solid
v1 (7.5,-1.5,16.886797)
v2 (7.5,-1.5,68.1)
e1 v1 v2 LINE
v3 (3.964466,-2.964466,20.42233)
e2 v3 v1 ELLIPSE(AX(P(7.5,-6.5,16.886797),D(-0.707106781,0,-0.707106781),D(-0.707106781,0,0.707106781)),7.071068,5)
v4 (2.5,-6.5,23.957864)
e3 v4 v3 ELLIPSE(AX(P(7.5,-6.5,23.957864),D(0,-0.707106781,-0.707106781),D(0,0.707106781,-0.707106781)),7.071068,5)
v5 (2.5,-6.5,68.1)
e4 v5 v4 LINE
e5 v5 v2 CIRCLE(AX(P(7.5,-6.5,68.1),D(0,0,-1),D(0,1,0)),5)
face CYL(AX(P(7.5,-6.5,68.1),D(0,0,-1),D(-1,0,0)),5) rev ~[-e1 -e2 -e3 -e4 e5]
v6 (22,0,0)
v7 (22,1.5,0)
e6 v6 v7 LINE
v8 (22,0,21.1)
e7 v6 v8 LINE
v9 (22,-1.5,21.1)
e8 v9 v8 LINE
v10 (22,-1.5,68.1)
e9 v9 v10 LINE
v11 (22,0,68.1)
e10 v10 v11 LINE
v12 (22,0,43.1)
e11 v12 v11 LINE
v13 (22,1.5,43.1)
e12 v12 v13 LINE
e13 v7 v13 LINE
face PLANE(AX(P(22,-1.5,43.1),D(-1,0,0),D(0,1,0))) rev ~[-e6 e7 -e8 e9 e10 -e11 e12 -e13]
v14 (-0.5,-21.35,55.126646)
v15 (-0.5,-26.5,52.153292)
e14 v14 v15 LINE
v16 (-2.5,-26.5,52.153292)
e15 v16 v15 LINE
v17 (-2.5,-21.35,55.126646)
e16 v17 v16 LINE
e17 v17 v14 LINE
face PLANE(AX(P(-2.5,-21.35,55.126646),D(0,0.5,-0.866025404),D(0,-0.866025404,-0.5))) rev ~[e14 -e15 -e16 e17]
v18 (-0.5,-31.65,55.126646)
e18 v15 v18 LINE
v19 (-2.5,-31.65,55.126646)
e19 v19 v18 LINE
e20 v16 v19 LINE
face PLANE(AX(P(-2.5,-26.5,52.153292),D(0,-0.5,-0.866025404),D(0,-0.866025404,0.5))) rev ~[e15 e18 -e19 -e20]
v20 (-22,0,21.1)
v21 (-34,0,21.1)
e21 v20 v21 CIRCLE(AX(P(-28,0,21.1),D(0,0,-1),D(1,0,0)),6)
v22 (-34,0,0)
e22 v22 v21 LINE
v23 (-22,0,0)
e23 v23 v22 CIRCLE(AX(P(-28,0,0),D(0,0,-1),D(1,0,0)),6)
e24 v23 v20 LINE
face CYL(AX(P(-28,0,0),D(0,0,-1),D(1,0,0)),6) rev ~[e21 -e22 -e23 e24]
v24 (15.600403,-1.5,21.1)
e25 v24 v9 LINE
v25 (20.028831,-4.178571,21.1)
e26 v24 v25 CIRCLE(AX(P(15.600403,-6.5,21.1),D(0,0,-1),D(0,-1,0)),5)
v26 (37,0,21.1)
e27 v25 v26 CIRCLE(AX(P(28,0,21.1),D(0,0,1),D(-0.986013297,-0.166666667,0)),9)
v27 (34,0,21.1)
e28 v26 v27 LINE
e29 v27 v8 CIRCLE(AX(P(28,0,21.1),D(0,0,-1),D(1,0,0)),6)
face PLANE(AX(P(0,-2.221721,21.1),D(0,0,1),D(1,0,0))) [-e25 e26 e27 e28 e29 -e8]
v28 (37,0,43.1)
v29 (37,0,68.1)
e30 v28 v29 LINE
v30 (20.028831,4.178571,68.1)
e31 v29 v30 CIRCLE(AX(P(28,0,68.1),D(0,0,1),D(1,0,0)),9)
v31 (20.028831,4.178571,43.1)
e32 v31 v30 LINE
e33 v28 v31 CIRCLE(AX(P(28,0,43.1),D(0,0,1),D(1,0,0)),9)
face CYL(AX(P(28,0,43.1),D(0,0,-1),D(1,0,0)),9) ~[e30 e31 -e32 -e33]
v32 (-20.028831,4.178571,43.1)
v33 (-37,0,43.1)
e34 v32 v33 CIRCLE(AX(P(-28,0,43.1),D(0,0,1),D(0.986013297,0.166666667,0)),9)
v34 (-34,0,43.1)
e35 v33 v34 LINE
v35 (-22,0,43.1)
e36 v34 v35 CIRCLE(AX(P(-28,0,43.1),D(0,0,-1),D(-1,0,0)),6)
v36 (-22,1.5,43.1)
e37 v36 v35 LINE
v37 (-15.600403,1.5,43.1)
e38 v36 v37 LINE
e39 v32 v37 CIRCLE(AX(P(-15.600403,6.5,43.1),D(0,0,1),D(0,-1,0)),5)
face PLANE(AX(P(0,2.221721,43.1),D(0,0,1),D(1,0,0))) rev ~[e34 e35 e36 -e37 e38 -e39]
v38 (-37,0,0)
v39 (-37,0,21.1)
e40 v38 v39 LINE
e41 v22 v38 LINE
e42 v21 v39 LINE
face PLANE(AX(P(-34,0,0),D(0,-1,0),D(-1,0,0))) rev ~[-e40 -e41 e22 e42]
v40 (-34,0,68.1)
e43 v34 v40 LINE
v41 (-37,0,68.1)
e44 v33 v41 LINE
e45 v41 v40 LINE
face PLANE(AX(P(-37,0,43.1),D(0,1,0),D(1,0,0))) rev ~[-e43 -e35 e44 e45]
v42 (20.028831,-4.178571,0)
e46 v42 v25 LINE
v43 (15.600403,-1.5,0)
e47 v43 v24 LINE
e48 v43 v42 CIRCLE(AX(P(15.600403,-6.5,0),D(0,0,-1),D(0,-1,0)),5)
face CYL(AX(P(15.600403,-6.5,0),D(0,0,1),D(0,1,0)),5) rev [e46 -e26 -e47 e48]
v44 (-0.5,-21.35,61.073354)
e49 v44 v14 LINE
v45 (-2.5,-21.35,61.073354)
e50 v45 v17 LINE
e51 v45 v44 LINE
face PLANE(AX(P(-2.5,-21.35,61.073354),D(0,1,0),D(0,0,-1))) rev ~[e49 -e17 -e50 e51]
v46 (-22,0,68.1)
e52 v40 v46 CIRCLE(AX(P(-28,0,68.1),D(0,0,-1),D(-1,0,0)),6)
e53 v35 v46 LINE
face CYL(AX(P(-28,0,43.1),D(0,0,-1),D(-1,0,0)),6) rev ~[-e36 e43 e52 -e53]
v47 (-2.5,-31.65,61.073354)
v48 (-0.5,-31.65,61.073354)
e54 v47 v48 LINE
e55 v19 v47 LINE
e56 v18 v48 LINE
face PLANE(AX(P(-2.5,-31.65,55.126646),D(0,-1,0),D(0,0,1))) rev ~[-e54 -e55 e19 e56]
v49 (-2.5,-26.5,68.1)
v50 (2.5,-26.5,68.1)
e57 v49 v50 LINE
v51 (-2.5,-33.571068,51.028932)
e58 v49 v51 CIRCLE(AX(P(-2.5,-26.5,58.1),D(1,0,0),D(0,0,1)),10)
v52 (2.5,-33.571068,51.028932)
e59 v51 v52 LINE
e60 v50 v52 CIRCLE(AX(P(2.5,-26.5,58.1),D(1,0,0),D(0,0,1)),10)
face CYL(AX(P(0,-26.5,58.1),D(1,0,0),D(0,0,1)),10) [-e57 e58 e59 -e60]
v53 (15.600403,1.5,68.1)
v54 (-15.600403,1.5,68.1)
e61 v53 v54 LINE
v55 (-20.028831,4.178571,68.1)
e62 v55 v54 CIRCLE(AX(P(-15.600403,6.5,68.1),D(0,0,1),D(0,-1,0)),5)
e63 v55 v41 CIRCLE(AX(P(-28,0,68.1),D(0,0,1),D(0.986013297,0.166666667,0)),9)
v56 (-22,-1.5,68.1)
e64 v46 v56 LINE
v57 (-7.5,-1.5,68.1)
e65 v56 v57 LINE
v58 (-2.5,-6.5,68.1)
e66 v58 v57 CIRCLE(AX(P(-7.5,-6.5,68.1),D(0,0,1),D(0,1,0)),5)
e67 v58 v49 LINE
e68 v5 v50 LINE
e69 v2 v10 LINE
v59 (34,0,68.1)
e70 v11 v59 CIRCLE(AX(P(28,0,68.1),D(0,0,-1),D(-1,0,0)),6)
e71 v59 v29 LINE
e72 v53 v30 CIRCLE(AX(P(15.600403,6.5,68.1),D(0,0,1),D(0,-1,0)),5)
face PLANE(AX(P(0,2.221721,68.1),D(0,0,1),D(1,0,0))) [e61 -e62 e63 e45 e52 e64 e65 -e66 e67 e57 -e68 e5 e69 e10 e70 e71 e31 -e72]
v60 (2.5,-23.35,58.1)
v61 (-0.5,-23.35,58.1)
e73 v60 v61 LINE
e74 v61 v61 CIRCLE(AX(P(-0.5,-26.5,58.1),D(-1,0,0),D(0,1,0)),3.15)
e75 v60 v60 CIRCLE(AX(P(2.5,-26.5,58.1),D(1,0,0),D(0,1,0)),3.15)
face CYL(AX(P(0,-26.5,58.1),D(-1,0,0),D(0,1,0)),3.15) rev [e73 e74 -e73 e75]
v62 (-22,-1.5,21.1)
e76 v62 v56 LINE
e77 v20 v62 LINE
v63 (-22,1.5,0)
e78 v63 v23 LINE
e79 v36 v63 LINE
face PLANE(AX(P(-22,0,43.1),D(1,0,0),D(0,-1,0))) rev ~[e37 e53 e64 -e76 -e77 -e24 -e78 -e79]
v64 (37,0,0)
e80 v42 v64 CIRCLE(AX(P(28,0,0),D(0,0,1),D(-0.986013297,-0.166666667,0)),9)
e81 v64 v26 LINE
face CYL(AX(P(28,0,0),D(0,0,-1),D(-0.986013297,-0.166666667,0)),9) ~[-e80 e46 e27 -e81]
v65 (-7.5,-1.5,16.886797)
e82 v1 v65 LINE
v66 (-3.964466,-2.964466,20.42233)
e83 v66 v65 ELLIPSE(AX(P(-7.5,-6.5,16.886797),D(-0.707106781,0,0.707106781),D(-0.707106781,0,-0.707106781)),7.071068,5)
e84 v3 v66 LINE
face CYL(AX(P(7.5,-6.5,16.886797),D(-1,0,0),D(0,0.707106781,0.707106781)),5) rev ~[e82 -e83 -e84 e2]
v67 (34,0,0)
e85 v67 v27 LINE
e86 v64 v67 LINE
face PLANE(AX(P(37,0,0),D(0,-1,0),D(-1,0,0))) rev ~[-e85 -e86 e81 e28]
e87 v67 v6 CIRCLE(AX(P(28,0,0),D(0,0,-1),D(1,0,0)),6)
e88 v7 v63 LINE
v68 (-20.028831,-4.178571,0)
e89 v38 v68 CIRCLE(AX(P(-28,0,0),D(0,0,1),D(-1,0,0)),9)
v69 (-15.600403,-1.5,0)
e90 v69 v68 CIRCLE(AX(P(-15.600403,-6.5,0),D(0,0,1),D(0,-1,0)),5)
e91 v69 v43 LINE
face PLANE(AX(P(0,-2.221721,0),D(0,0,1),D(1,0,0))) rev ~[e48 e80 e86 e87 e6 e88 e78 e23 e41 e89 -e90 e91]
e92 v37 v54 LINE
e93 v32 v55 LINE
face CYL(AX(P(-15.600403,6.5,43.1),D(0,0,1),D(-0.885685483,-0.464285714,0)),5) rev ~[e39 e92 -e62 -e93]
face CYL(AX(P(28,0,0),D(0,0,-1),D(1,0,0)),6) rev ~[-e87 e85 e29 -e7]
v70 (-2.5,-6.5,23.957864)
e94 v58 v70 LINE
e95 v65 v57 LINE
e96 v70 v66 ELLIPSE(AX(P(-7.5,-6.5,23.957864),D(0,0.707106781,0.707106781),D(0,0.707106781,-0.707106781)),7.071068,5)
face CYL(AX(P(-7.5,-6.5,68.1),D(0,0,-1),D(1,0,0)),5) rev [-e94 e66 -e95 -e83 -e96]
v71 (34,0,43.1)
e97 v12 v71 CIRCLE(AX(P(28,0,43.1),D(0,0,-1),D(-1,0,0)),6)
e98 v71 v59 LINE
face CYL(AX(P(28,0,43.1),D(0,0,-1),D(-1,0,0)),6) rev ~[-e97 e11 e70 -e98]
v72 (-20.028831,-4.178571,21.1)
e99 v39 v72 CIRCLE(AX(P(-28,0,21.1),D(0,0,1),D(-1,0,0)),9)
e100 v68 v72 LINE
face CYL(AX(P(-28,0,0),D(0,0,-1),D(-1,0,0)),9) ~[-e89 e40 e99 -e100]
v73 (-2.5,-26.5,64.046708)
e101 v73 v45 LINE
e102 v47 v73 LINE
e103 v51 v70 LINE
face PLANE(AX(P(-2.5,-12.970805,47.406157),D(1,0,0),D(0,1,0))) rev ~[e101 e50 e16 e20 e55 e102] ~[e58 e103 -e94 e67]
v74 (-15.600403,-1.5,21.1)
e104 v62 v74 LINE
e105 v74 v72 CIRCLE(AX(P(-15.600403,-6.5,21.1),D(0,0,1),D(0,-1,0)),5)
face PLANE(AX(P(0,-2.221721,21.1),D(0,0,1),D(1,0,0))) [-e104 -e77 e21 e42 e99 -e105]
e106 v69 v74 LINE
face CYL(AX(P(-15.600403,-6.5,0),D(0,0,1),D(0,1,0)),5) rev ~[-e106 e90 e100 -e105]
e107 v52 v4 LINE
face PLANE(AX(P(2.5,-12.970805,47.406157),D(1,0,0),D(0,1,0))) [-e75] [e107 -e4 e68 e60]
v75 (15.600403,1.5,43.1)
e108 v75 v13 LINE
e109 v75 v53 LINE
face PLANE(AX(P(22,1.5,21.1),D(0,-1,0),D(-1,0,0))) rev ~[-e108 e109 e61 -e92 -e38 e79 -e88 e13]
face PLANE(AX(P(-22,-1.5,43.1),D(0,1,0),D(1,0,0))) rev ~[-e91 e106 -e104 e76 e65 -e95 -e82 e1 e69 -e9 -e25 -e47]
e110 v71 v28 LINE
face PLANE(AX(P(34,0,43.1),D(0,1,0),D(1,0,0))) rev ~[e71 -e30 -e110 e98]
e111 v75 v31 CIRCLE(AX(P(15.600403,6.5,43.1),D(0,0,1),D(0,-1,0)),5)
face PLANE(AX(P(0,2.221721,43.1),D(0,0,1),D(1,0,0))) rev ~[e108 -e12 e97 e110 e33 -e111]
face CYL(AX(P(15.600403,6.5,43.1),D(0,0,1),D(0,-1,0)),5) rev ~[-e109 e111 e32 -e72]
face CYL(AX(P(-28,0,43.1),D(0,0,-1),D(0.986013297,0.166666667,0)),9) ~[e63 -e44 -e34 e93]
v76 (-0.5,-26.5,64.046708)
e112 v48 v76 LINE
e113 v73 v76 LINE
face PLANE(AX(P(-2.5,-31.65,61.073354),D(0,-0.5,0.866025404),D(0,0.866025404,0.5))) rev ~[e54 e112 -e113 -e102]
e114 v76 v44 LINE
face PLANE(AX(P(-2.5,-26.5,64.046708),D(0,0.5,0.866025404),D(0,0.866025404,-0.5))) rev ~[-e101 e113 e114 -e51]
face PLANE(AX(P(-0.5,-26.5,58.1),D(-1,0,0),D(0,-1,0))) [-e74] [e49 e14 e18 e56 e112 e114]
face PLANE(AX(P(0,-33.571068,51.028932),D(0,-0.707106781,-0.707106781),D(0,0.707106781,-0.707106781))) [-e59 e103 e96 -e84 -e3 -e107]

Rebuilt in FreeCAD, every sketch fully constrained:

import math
import FreeCAD as App
import Part
import Sketcher
from FreeCAD import Vector
Q = App.Units.Quantity


def edges_at(feature, points):
    """Names of the edges that pass closest to the given points."""
    edges = feature.Shape.Edges
    near = lambda p: min(range(len(edges)), key=lambda i: edges[i].distToShape(Part.Vertex(*p))[0])
    return sorted({f"Edge{near(p) + 1}" for p in points})


def add_polygon(sketch, points):
    """Adds a closed chain of lines whose ends are joined by coincident constraints."""
    first, n = sketch.GeometryCount, len(points)
    for a, b in zip(points, points[1:] + points[:1]):
        sketch.addGeometry(Part.LineSegment(App.Vector(*a, 0), App.Vector(*b, 0)), False)
    for i in range(n):
        sketch.addConstraint(Sketcher.Constraint("Coincident", first + i, 2, first + (i + 1) % n, 1))

doc = App.newDocument("Part")
params = doc.addObject("Spreadsheet::Sheet", "Params")
for row, (alias, value) in enumerate([
    ("sketch1_radius", "6 mm"),
    ("sketch1_radius2", "9 mm"),
    ("sketch1_width", "44 mm"),
    ("sketch1_height", "1.5 mm"),
    ("pad1_length", "21.1 mm"),
    ("sketch2_width", "44 mm"),
    ("sketch2_height", "3 mm"),
    ("pad2_length", "22 mm"),
    ("sketch3_radius", "6 mm"),
    ("sketch3_radius2", "9 mm"),
    ("sketch3_width", "44 mm"),
    ("sketch3_height", "1.5 mm"),
    ("pad3_length", "25 mm"),
    ("sketch4_radius", "10 mm"),
    ("sketch4_diameter", "6.3 mm"),
    ("sketch4_width", "26.5 mm"),
    ("pad4_length", "5 mm"),
    ("sketch5_diameter", "6.3 mm"),
    ("pocket1_length", "2 mm"),
    ("fillet_radius", "5 mm"),
    ("fillet2_radius", "5 mm"),
    ("fillet3_radius", "5 mm"),
], start=1):
    params.set(f"A{row}", alias)
    params.set(f"B{row}", "=" + value)
    params.setAlias(f"B{row}", alias)

body = doc.addObject("PartDesign::Body", "Body")

sketch1 = body.newObject("Sketcher::SketchObject", "Sketch")
sketch1.AttachmentSupport = (doc.getObject("XY_Plane"), [""])
sketch1.MapMode = "FlatFace"
sketch1.addGeometry(Part.ArcOfCircle(Part.Circle(Vector(-28, 0, 0), Vector(0, 0, 1), 6), math.radians(180), math.radians(360)), False)
sketch1.addGeometry(Part.LineSegment(Vector(-34, 0, 0), Vector(-37, 0, 0)), False)
sketch1.addGeometry(Part.ArcOfCircle(Part.Circle(Vector(-28, 0, 0), Vector(0, 0, 1), 9), math.radians(180), math.radians(350.405932)), False)
sketch1.addGeometry(Part.LineSegment(Vector(-19.12588, -1.5, 0), Vector(19.12588, -1.5, 0)), False)
sketch1.addGeometry(Part.ArcOfCircle(Part.Circle(Vector(28, 0, 0), Vector(0, 0, 1), 9), math.radians(-170.405932), math.radians(0)), False)
sketch1.addGeometry(Part.LineSegment(Vector(37, 0, 0), Vector(34, 0, 0)), False)
sketch1.addGeometry(Part.ArcOfCircle(Part.Circle(Vector(28, 0, 0), Vector(0, 0, 1), 6), math.radians(180), math.radians(360)), False)
sketch1.addGeometry(Part.LineSegment(Vector(22, 0, 0), Vector(22, 1.5, 0)), False)
sketch1.addGeometry(Part.LineSegment(Vector(22, 1.5, 0), Vector(-22, 1.5, 0)), False)
sketch1.addGeometry(Part.LineSegment(Vector(-22, 1.5, 0), Vector(-22, 0, 0)), False)
sketch1.addConstraint(Sketcher.Constraint("Coincident", 0, 1, 1, 1))
sketch1.addConstraint(Sketcher.Constraint("Coincident", 1, 2, 2, 1))
sketch1.addConstraint(Sketcher.Constraint("Coincident", 2, 2, 3, 1))
sketch1.addConstraint(Sketcher.Constraint("Coincident", 3, 2, 4, 1))
sketch1.addConstraint(Sketcher.Constraint("Coincident", 4, 2, 5, 1))
sketch1.addConstraint(Sketcher.Constraint("Coincident", 5, 2, 6, 2))
sketch1.addConstraint(Sketcher.Constraint("Tangent", 6, 1, 7, 1))
sketch1.addConstraint(Sketcher.Constraint("Coincident", 7, 2, 8, 1))
sketch1.addConstraint(Sketcher.Constraint("Coincident", 8, 2, 9, 1))
sketch1.addConstraint(Sketcher.Constraint("Tangent", 9, 2, 0, 2))
sketch1.addConstraint(Sketcher.Constraint("Horizontal", 1))
sketch1.addConstraint(Sketcher.Constraint("Horizontal", 3))
sketch1.addConstraint(Sketcher.Constraint("Horizontal", 5))
sketch1.addConstraint(Sketcher.Constraint("Vertical", 7))
sketch1.addConstraint(Sketcher.Constraint("Horizontal", 8))
sketch1.addConstraint(Sketcher.Constraint("Vertical", 9))
sketch1.addConstraint(Sketcher.Constraint("Coincident", 2, 3, 0, 3))
sketch1.addConstraint(Sketcher.Constraint("Coincident", 6, 3, 4, 3))
sketch1.addConstraint(Sketcher.Constraint("Equal", 2, 4))
sketch1.addConstraint(Sketcher.Constraint("Equal", 0, 6))
sketch1.addConstraint(Sketcher.Constraint("Symmetric", 0, 3, 4, 3, -1, 1))
sketch1.addConstraint(Sketcher.Constraint("PointOnObject", 0, 3, -1))
sketch1.addConstraint(Sketcher.Constraint("PointOnObject", 0, 1, -1))
sketch1.addConstraint(Sketcher.Constraint("PointOnObject", 4, 2, -1))
sketch1.addConstraint(Sketcher.Constraint("Radius", 0, Q("6 mm")))
sketch1.addConstraint(Sketcher.Constraint("Radius", 2, Q("9 mm")))
sketch1.addConstraint(Sketcher.Constraint("DistanceX", 8, 2, 8, 1, Q("44 mm")))
sketch1.addConstraint(Sketcher.Constraint("DistanceY", 7, 1, 7, 2, Q("1.5 mm")))
sketch1.addConstraint(Sketcher.Constraint("DistanceY", 3, 2, 7, 2, Q("3 mm")))
sketch1.setExpression("Constraints[24]", "Params.sketch1_radius")
sketch1.setExpression("Constraints[25]", "Params.sketch1_radius2")
sketch1.setExpression("Constraints[26]", "Params.sketch1_width")
sketch1.setExpression("Constraints[27]", "Params.sketch1_height")
pad1 = body.newObject("PartDesign::Pad", "Pad")
pad1.Profile = sketch1
pad1.setExpression("Length", "Params.pad1_length")

sketch2 = body.newObject("Sketcher::SketchObject", "Sketch001")
sketch2.AttachmentSupport = (doc.getObject("XY_Plane"), [""])
sketch2.MapMode = "FlatFace"
sketch2.AttachmentOffset = App.Placement(Vector(0, 0, 21.1), App.Rotation())
add_polygon(sketch2, [(-22, -1.5), (22, -1.5), (22, 1.5), (-22, 1.5)])
sketch2.addConstraint(Sketcher.Constraint("Horizontal", 0))
sketch2.addConstraint(Sketcher.Constraint("Vertical", 1))
sketch2.addConstraint(Sketcher.Constraint("Horizontal", 2))
sketch2.addConstraint(Sketcher.Constraint("Vertical", 3))
sketch2.addConstraint(Sketcher.Constraint("Symmetric", 0, 2, 2, 2, -1, 1))
sketch2.addConstraint(Sketcher.Constraint("DistanceX", 0, 1, 0, 2, Q("44 mm")))
sketch2.addConstraint(Sketcher.Constraint("DistanceY", 1, 1, 1, 2, Q("3 mm")))
sketch2.setExpression("Constraints[9]", "Params.sketch2_width")
sketch2.setExpression("Constraints[10]", "Params.sketch2_height")
pad2 = body.newObject("PartDesign::Pad", "Pad001")
pad2.Profile = sketch2
pad2.setExpression("Length", "Params.pad2_length")

sketch3 = body.newObject("Sketcher::SketchObject", "Sketch002")
sketch3.AttachmentSupport = (doc.getObject("XY_Plane"), [""])
sketch3.MapMode = "FlatFace"
sketch3.AttachmentOffset = App.Placement(Vector(0, 0, 43.1), App.Rotation())
sketch3.addGeometry(Part.ArcOfCircle(Part.Circle(Vector(-28, 0, 0), Vector(0, 0, 1), 6), math.radians(0), math.radians(180)), False)
sketch3.addGeometry(Part.LineSegment(Vector(-22, 0, 0), Vector(-22, -1.5, 0)), False)
sketch3.addGeometry(Part.LineSegment(Vector(-22, -1.5, 0), Vector(22, -1.5, 0)), False)
sketch3.addGeometry(Part.LineSegment(Vector(22, -1.5, 0), Vector(22, 0, 0)), False)
sketch3.addGeometry(Part.ArcOfCircle(Part.Circle(Vector(28, 0, 0), Vector(0, 0, 1), 6), math.radians(0), math.radians(180)), False)
sketch3.addGeometry(Part.LineSegment(Vector(34, 0, 0), Vector(37, 0, 0)), False)
sketch3.addGeometry(Part.ArcOfCircle(Part.Circle(Vector(28, 0, 0), Vector(0, 0, 1), 9), math.radians(0), math.radians(170.405932)), False)
sketch3.addGeometry(Part.LineSegment(Vector(19.12588, 1.5, 0), Vector(-19.12588, 1.5, 0)), False)
sketch3.addGeometry(Part.ArcOfCircle(Part.Circle(Vector(-28, 0, 0), Vector(0, 0, 1), 9), math.radians(9.594068), math.radians(180)), False)
sketch3.addGeometry(Part.LineSegment(Vector(-37, 0, 0), Vector(-34, 0, 0)), False)
sketch3.addConstraint(Sketcher.Constraint("Tangent", 0, 1, 1, 1))
sketch3.addConstraint(Sketcher.Constraint("Coincident", 1, 2, 2, 1))
sketch3.addConstraint(Sketcher.Constraint("Coincident", 2, 2, 3, 1))
sketch3.addConstraint(Sketcher.Constraint("Tangent", 3, 2, 4, 2))
sketch3.addConstraint(Sketcher.Constraint("Coincident", 4, 1, 5, 1))
sketch3.addConstraint(Sketcher.Constraint("Coincident", 5, 2, 6, 1))
sketch3.addConstraint(Sketcher.Constraint("Coincident", 6, 2, 7, 1))
sketch3.addConstraint(Sketcher.Constraint("Coincident", 7, 2, 8, 1))
sketch3.addConstraint(Sketcher.Constraint("Coincident", 8, 2, 9, 1))
sketch3.addConstraint(Sketcher.Constraint("Coincident", 9, 2, 0, 2))
sketch3.addConstraint(Sketcher.Constraint("Vertical", 1))
sketch3.addConstraint(Sketcher.Constraint("Horizontal", 2))
sketch3.addConstraint(Sketcher.Constraint("Vertical", 3))
sketch3.addConstraint(Sketcher.Constraint("Horizontal", 5))
sketch3.addConstraint(Sketcher.Constraint("Horizontal", 7))
sketch3.addConstraint(Sketcher.Constraint("Horizontal", 9))
sketch3.addConstraint(Sketcher.Constraint("Coincident", 6, 3, 4, 3))
sketch3.addConstraint(Sketcher.Constraint("Coincident", 8, 3, 0, 3))
sketch3.addConstraint(Sketcher.Constraint("Equal", 0, 4))
sketch3.addConstraint(Sketcher.Constraint("Equal", 6, 8))
sketch3.addConstraint(Sketcher.Constraint("Symmetric", 0, 3, 4, 3, -1, 1))
sketch3.addConstraint(Sketcher.Constraint("PointOnObject", 0, 3, -1))
sketch3.addConstraint(Sketcher.Constraint("PointOnObject", 4, 1, -1))
sketch3.addConstraint(Sketcher.Constraint("PointOnObject", 8, 2, -1))
sketch3.addConstraint(Sketcher.Constraint("Radius", 0, Q("6 mm")))
sketch3.addConstraint(Sketcher.Constraint("Radius", 6, Q("9 mm")))
sketch3.addConstraint(Sketcher.Constraint("DistanceX", 2, 1, 2, 2, Q("44 mm")))
sketch3.addConstraint(Sketcher.Constraint("DistanceY", 1, 2, 1, 1, Q("1.5 mm")))
sketch3.addConstraint(Sketcher.Constraint("DistanceY", 2, 2, 6, 2, Q("3 mm")))
sketch3.setExpression("Constraints[24]", "Params.sketch3_radius")
sketch3.setExpression("Constraints[25]", "Params.sketch3_radius2")
sketch3.setExpression("Constraints[26]", "Params.sketch3_width")
sketch3.setExpression("Constraints[27]", "Params.sketch3_height")
pad3 = body.newObject("PartDesign::Pad", "Pad002")
pad3.Profile = sketch3
pad3.setExpression("Length", "Params.pad3_length")

sketch4 = body.newObject("Sketcher::SketchObject", "Sketch003")
sketch4.AttachmentSupport = (doc.getObject("YZ_Plane"), [""])
sketch4.MapMode = "FlatFace"
sketch4.addGeometry(Part.LineSegment(Vector(0, 68.1, 0), Vector(-26.5, 68.1, 0)), False)
sketch4.addGeometry(Part.ArcOfCircle(Part.Circle(Vector(-26.5, 58.1, 0), Vector(0, 0, 1), 10), math.radians(90), math.radians(225)), False)
sketch4.addGeometry(Part.LineSegment(Vector(-33.571068, 51.028932, 0), Vector(0, 17.457864, 0)), False)
sketch4.addGeometry(Part.LineSegment(Vector(0, 17.457864, 0), Vector(0, 68.1, 0)), False)
sketch4.addGeometry(Part.Circle(Vector(-26.5, 58.1, 0), Vector(0, 0, 1), 3.15), False)
sketch4.addConstraint(Sketcher.Constraint("Tangent", 0, 2, 1, 1))
sketch4.addConstraint(Sketcher.Constraint("Tangent", 1, 2, 2, 1))
sketch4.addConstraint(Sketcher.Constraint("Coincident", 2, 2, 3, 1))
sketch4.addConstraint(Sketcher.Constraint("Coincident", 3, 2, 0, 1))
sketch4.addConstraint(Sketcher.Constraint("Horizontal", 0))
sketch4.addConstraint(Sketcher.Constraint("Vertical", 3))
sketch4.addConstraint(Sketcher.Constraint("Coincident", 4, 3, 1, 3))
sketch4.addConstraint(Sketcher.Constraint("PointOnObject", 2, 2, -2))
sketch4.addConstraint(Sketcher.Constraint("Radius", 1, Q("10 mm")))
sketch4.addConstraint(Sketcher.Constraint("Diameter", 4, Q("6.3 mm")))
sketch4.addConstraint(Sketcher.Constraint("Angle", 2, Q("-45 deg")))
sketch4.addConstraint(Sketcher.Constraint("DistanceX", 0, 2, 0, 1, Q("26.5 mm")))
sketch4.addConstraint(Sketcher.Constraint("DistanceY", -1, 1, 1, 3, Q("58.1 mm")))
sketch4.setExpression("Constraints[8]", "Params.sketch4_radius")
sketch4.setExpression("Constraints[9]", "Params.sketch4_diameter")
sketch4.setExpression("Constraints[11]", "Params.sketch4_width")
pad4 = body.newObject("PartDesign::Pad", "Pad003")
pad4.Profile = sketch4
pad4.setExpression("Length", "Params.pad4_length")
pad4.Midplane = True

sketch5 = body.newObject("Sketcher::SketchObject", "Sketch004")
sketch5.AttachmentSupport = (doc.getObject("YZ_Plane"), [""])
sketch5.MapMode = "FlatFace"
sketch5.AttachmentOffset = App.Placement(Vector(0, 0, -2.5), App.Rotation())
add_polygon(sketch5, [(-31.65, 61.073354), (-26.5, 64.046708), (-21.35, 61.073354), (-21.35, 55.126646), (-26.5, 52.153292), (-31.65, 55.126646)])
sketch5.addGeometry(Part.Circle(Vector(-26.5, 58.1, 0), Vector(0, 0, 1), 3.15), False)
sketch5.addConstraint(Sketcher.Constraint("Vertical", 2))
sketch5.addConstraint(Sketcher.Constraint("Vertical", 5))
sketch5.addConstraint(Sketcher.Constraint("Parallel", 0, 3))
sketch5.addConstraint(Sketcher.Constraint("Parallel", 1, 4))
sketch5.addConstraint(Sketcher.Constraint("Horizontal", 2, 2, 4, 2))
sketch5.addConstraint(Sketcher.Constraint("Horizontal", 1, 2, 5, 2))
sketch5.addConstraint(Sketcher.Constraint("Vertical", 6, 3, 0, 2))
sketch5.addConstraint(Sketcher.Constraint("Vertical", 0, 2, 3, 2))
sketch5.addConstraint(Sketcher.Constraint("Diameter", 6, Q("6.3 mm")))
sketch5.addConstraint(Sketcher.Constraint("Angle", 0, Q("30 deg")))
sketch5.addConstraint(Sketcher.Constraint("DistanceX", 6, 3, -1, 1, Q("26.5 mm")))
sketch5.addConstraint(Sketcher.Constraint("DistanceY", -1, 1, 6, 3, Q("58.1 mm")))
sketch5.addConstraint(Sketcher.Constraint("DistanceX", 4, 2, 2, 2, Q("10.3 mm")))
sketch5.addConstraint(Sketcher.Constraint("DistanceY", 2, 2, 2, 1, Q("5.946708 mm")))
sketch5.addConstraint(Sketcher.Constraint("DistanceY", -1, 1, 0, 2, Q("64.046708 mm")))
sketch5.setExpression("Constraints[14]", "Params.sketch5_diameter")
pocket1 = body.newObject("PartDesign::Pocket", "Pocket")
pocket1.Profile = sketch5
pocket1.setExpression("Length", "Params.pocket1_length")
pocket1.Reversed = True
doc.recompute()

fillet = body.newObject("PartDesign::Fillet", "Fillet")
fillet.Base = (pocket1, edges_at(pocket1, [(-2.5, -1.5, 43.529), (2.5, -1.5, 43.529)]))
fillet.setExpression("Radius", "Params.fillet_radius")
doc.recompute()

fillet2 = body.newObject("PartDesign::Fillet", "Fillet001")
fillet2.Base = (fillet, edges_at(fillet, [(0, -1.5, 18.958)]))
fillet2.setExpression("Radius", "Params.fillet2_radius")
doc.recompute()

fillet3 = body.newObject("PartDesign::Fillet", "Fillet002")
fillet3.Base = (fillet2, edges_at(fillet2, [
    (-19.126, -1.5, 10.55),
    (19.126, -1.5, 10.55),
    (-19.126, 1.5, 55.6),
    (19.126, 1.5, 55.6),
]))
fillet3.setExpression("Radius", "Params.fillet3_radius")

doc.recompute()
